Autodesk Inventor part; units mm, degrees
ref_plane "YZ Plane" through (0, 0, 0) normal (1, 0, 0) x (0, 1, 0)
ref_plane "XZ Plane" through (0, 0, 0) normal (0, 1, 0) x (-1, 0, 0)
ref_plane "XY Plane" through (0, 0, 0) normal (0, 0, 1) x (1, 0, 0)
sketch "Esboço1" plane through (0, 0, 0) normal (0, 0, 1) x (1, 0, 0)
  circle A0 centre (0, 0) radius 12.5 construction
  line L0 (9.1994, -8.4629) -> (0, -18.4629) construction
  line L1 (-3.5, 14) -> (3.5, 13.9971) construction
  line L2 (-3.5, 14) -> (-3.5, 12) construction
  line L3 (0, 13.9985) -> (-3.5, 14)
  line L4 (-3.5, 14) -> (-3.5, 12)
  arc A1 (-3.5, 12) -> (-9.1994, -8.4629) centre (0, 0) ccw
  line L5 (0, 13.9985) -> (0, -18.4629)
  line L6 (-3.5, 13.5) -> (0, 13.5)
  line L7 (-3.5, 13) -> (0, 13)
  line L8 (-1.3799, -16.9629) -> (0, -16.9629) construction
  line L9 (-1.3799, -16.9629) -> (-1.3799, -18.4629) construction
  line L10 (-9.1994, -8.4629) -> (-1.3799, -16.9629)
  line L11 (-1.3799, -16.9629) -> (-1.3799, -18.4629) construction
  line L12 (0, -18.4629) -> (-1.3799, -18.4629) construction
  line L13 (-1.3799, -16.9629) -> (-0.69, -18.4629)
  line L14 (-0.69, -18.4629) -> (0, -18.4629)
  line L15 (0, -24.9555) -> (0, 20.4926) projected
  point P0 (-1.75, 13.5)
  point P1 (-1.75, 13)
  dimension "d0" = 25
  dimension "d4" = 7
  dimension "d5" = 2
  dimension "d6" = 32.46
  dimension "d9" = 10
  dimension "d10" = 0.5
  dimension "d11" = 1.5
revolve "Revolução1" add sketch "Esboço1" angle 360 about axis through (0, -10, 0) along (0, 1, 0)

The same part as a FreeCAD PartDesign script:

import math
import FreeCAD as App
import Part
import Sketcher
from FreeCAD import Vector
Q = App.Units.Quantity

doc = App.newDocument("Part")
body = doc.addObject("PartDesign::Body", "Body")

# Sketch on XY plane
sketch1 = body.newObject("Sketcher::SketchObject", "Sketch")
sketch1.AttachmentSupport = (doc.getObject("XY_Plane"), [""])
sketch1.MapMode = "FlatFace"
sketch1.addGeometry([
    Part.LineSegment(Vector(0, 14, 0), Vector(-3.5, 14, 0)),  # 0
    Part.LineSegment(Vector(-3.5, 14, 0), Vector(-3.5, 12, 0)),  # 1
    Part.ArcOfCircle(Part.Circle(Vector(0, 0, 0), Vector(0, 0, 1), 12.5), math.radians(106), math.radians(223)),  # 2
    Part.LineSegment(Vector(-9.2, -8.5, 0), Vector(-1.4, -17, 0)),  # 3
    Part.LineSegment(Vector(-1.4, -17, 0), Vector(-0.7, -18.5, 0)),  # 4
    Part.LineSegment(Vector(-0.7, -18.5, 0), Vector(0, -18.5, 0)),  # 5
    Part.LineSegment(Vector(0, -18.5, 0), Vector(0, 14, 0)),  # 6
], False)
sketch1.addConstraint([
    Sketcher.Constraint("Coincident", 0, 2, 1, 1),
    Sketcher.Constraint("Coincident", 1, 2, 2, 1),
    Sketcher.Constraint("Tangent", 2, 2, 3, 1),
    Sketcher.Constraint("Coincident", 3, 2, 4, 1),
    Sketcher.Constraint("Coincident", 4, 2, 5, 1),
    Sketcher.Constraint("Coincident", 5, 2, 6, 1),
    Sketcher.Constraint("Coincident", 6, 2, 0, 1),
    Sketcher.Constraint("Vertical", 1),
    Sketcher.Constraint("Horizontal", 5),
    Sketcher.Constraint("Vertical", 6),
    Sketcher.Constraint("Coincident", 2, 3, -1, 1),
    Sketcher.Constraint("PointOnObject", 5, 2, -2),
    Sketcher.Constraint("Radius", 2, 12.5),
    Sketcher.Constraint("DistanceY", 1, 2, 1, 1, 2.0),
    Sketcher.Constraint("DistanceY", 4, 2, 2, 2, 10.0),
    Sketcher.Constraint("DistanceY", 4, 2, 3, 2, 1.5),
    Sketcher.Constraint("DistanceY", -1, 1, 0, 2, 14.0),
    Sketcher.Constraint("Angle", 4, Q("-65.3007 deg")),
    Sketcher.Constraint("DistanceX", 5, 1, 5, 2, 0.69),
    Sketcher.Constraint("DistanceY", 6, 1, 6, 2, 32.4614),
])
revolution = body.newObject("PartDesign::Revolution", "Revolution")
revolution.Profile = sketch1
revolution.ReferenceAxis = (sketch1, ["V_Axis"])
revolution.Angle = 360

doc.recompute()
